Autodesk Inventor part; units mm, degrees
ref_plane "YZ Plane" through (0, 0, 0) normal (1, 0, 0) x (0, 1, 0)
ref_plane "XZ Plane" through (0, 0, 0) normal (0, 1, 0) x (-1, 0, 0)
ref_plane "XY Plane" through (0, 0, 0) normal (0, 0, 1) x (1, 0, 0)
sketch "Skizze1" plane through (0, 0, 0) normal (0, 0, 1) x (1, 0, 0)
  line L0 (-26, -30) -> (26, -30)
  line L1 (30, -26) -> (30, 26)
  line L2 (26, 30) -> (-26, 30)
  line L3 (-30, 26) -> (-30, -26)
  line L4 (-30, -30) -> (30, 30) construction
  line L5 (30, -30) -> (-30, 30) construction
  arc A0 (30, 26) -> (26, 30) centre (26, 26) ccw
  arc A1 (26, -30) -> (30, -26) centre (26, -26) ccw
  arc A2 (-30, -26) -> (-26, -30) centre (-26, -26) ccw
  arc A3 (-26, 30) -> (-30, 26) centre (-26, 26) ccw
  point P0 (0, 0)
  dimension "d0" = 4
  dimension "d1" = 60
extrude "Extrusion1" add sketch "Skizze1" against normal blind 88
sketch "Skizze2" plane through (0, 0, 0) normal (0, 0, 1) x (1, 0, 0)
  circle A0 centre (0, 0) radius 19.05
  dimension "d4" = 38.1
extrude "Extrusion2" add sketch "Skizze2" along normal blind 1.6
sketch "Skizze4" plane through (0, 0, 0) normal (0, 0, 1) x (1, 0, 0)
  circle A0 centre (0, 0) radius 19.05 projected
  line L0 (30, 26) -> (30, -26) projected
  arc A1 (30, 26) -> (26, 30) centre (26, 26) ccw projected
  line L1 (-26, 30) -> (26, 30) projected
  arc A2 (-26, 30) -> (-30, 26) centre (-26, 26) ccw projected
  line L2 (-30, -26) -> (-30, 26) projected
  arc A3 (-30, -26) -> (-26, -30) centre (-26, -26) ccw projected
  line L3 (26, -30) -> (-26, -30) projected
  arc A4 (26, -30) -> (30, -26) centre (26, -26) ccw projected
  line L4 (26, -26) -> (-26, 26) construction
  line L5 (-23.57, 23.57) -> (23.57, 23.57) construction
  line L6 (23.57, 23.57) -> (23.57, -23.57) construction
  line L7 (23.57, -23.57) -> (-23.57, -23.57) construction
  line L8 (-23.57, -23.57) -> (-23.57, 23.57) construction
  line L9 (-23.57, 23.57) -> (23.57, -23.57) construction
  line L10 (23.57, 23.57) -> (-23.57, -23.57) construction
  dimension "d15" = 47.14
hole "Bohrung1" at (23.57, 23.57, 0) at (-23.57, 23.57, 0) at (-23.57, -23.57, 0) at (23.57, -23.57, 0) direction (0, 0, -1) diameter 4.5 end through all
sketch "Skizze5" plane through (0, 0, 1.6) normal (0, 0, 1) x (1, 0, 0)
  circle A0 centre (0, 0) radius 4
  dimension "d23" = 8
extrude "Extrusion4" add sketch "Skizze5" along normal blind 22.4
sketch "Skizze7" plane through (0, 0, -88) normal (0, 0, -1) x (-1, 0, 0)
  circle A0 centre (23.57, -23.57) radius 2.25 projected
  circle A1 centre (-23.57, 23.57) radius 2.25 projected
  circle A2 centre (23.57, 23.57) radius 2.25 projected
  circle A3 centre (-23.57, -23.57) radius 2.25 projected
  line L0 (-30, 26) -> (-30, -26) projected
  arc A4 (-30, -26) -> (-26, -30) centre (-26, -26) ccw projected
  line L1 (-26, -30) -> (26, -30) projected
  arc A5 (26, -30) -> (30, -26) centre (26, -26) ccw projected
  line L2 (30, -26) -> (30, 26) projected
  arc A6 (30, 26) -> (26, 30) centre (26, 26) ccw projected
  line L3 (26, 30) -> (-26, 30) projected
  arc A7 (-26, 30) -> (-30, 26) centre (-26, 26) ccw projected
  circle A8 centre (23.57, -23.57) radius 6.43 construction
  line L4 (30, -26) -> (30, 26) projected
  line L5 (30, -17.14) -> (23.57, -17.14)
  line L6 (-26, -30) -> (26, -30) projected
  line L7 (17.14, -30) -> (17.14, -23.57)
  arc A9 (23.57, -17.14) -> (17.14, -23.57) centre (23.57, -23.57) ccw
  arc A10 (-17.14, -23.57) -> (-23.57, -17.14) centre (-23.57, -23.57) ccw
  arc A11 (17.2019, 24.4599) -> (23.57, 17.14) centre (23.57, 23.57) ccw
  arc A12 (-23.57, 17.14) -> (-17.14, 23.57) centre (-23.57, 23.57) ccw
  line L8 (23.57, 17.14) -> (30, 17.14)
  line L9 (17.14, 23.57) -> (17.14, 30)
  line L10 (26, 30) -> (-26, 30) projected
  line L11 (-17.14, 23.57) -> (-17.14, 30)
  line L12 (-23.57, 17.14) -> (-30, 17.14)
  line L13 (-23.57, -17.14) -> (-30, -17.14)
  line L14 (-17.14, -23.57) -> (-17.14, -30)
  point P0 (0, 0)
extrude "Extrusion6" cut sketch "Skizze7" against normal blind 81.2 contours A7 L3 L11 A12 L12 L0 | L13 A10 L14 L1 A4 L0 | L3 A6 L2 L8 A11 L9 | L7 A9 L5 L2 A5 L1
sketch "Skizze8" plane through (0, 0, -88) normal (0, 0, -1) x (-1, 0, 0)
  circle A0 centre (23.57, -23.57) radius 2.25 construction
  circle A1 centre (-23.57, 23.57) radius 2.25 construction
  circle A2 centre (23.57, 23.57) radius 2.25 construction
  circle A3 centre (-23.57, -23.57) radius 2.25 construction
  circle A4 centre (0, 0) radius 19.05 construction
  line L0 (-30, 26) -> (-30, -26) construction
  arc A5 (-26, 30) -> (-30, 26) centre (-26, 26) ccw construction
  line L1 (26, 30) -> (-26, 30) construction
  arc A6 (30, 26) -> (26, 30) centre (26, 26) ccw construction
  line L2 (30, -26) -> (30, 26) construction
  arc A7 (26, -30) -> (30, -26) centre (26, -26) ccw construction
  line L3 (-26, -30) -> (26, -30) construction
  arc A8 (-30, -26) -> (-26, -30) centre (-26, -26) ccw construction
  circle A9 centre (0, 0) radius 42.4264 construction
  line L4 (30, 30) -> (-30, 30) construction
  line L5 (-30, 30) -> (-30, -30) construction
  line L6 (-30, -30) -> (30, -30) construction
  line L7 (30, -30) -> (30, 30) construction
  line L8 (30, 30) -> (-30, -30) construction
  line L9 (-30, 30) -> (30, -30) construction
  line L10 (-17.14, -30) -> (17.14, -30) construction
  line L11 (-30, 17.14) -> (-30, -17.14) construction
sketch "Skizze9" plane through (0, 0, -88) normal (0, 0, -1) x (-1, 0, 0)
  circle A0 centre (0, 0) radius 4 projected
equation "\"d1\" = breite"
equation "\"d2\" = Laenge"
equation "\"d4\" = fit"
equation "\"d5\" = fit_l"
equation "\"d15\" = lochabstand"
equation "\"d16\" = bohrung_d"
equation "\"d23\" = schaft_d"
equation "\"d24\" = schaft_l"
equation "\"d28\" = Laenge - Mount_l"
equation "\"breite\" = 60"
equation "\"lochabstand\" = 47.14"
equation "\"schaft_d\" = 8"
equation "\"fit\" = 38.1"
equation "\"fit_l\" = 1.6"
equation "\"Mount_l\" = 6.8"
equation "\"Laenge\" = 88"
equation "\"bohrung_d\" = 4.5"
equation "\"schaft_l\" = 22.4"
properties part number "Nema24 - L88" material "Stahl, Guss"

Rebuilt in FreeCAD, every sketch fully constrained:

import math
import FreeCAD as App
import Part
import Sketcher
Q = App.Units.Quantity

doc = App.newDocument("Part")
body = doc.addObject("PartDesign::Body", "Body")

# Sketch on XY plane
sketch1 = body.newObject("Sketcher::SketchObject", "Sketch")
sketch1.AttachmentSupport = (doc.getObject("XY_Plane"), [""])
sketch1.MapMode = "FlatFace"
sketch1.addGeometry([
    Part.ArcOfCircle(Part.Circle(App.Vector(-26, -26, 0), App.Vector(0, 0, 1), 4), math.radians(180), math.radians(270)),  # 0
    Part.LineSegment(App.Vector(-26, -30, 0), App.Vector(26, -30, 0)),  # 1
    Part.ArcOfCircle(Part.Circle(App.Vector(26, -26, 0), App.Vector(0, 0, 1), 4), math.radians(-90), math.radians(0)),  # 2
    Part.LineSegment(App.Vector(30, -26, 0), App.Vector(30, 26, 0)),  # 3
    Part.ArcOfCircle(Part.Circle(App.Vector(26, 26, 0), App.Vector(0, 0, 1), 4), math.radians(0), math.radians(90)),  # 4
    Part.LineSegment(App.Vector(26, 30, 0), App.Vector(-26, 30, 0)),  # 5
    Part.ArcOfCircle(Part.Circle(App.Vector(-26, 26, 0), App.Vector(0, 0, 1), 4), math.radians(90), math.radians(180)),  # 6
    Part.LineSegment(App.Vector(-30, 26, 0), App.Vector(-30, -26, 0)),  # 7
], False)
sketch1.addConstraint([
    Sketcher.Constraint("Tangent", 0, 2, 1, 1),
    Sketcher.Constraint("Tangent", 1, 2, 2, 1),
    Sketcher.Constraint("Tangent", 2, 2, 3, 1),
    Sketcher.Constraint("Tangent", 3, 2, 4, 1),
    Sketcher.Constraint("Tangent", 4, 2, 5, 1),
    Sketcher.Constraint("Tangent", 5, 2, 6, 1),
    Sketcher.Constraint("Tangent", 6, 2, 7, 1),
    Sketcher.Constraint("Tangent", 7, 2, 0, 1),
    Sketcher.Constraint("Horizontal", 1),
    Sketcher.Constraint("Vertical", 3),
    Sketcher.Constraint("Horizontal", 5),
    Sketcher.Constraint("Vertical", 7),
    Sketcher.Constraint("Equal", 0, 2),
    Sketcher.Constraint("Equal", 2, 4),
    Sketcher.Constraint("Equal", 4, 6),
    Sketcher.Constraint("Symmetric", 0, 3, 4, 3, -1, 1),
    Sketcher.Constraint("Equal", 5, 3),
    Sketcher.Constraint("Radius", 0, Q("4 mm")),
    Sketcher.Constraint("DistanceX", 1, 1, 1, 2, Q("52 mm")),
])
pad1 = body.newObject("PartDesign::Pad", "Pad")
pad1.Profile = sketch1
pad1.Length = 88
pad1.Reversed = True

# Sketch on XY plane
sketch2 = body.newObject("Sketcher::SketchObject", "Sketch001")
sketch2.AttachmentSupport = (doc.getObject("XY_Plane"), [""])
sketch2.MapMode = "FlatFace"
sketch2.addGeometry(Part.Circle(App.Vector(0, 0, 0), App.Vector(0, 0, 1), 19.05), False)
sketch2.addConstraint([
    Sketcher.Constraint("Coincident", 0, 3, -1, 1),
    Sketcher.Constraint("Diameter", 0, Q("38.1 mm")),
])
pad2 = body.newObject("PartDesign::Pad", "Pad001")
pad2.Profile = sketch2
pad2.Length = 1.6

# Sketch on XY plane
sketch3 = body.newObject("Sketcher::SketchObject", "Sketch002")
sketch3.AttachmentSupport = (doc.getObject("XY_Plane"), [""])
sketch3.MapMode = "FlatFace"
sketch3.addGeometry([
    Part.Circle(App.Vector(23.57, 23.57, 0), App.Vector(0, 0, 1), 2.25),
    Part.Circle(App.Vector(-23.57, 23.57, 0), App.Vector(0, 0, 1), 2.25),
    Part.Circle(App.Vector(-23.57, -23.57, 0), App.Vector(0, 0, 1), 2.25),
    Part.Circle(App.Vector(23.57, -23.57, 0), App.Vector(0, 0, 1), 2.25),
], False)
sketch3.addConstraint([
    Sketcher.Constraint("Equal", 0, 1),
    Sketcher.Constraint("Equal", 1, 2),
    Sketcher.Constraint("Equal", 2, 3),
    Sketcher.Constraint("Symmetric", 0, 3, 2, 3, -1, 1),
    Sketcher.Constraint("Symmetric", 1, 3, 3, 3, -1, 1),
    Sketcher.Constraint("Symmetric", 0, 3, 1, 3, -2),
    Sketcher.Constraint("Diameter", 0, Q("4.5 mm")),
    Sketcher.Constraint("DistanceX", -1, 1, 0, 3, Q("23.57 mm")),
    Sketcher.Constraint("DistanceY", -1, 1, 0, 3, Q("23.57 mm")),
])
doc.recompute()
hole = body.newObject("PartDesign::Hole", "Hole")
hole.Profile = sketch3
hole.ThreadType = "None"
hole.Diameter = 4.5
hole.DepthType = "ThroughAll"

# Sketch on XY plane
sketch4 = body.newObject("Sketcher::SketchObject", "Sketch003")
sketch4.AttachmentSupport = (doc.getObject("XY_Plane"), [""])
sketch4.MapMode = "FlatFace"
sketch4.AttachmentOffset = App.Placement(App.Vector(0, 0, 1.6), App.Rotation())
sketch4.addGeometry(Part.Circle(App.Vector(0, 0, 0), App.Vector(0, 0, 1), 4), False)
sketch4.addConstraint([
    Sketcher.Constraint("Coincident", 0, 3, -1, 1),
    Sketcher.Constraint("Diameter", 0, Q("8 mm")),
])
pad3 = body.newObject("PartDesign::Pad", "Pad002")
pad3.Profile = sketch4
pad3.Length = 22.4

# Sketch on XY plane
sketch5 = body.newObject("Sketcher::SketchObject", "Sketch004")
sketch5.AttachmentSupport = (doc.getObject("XY_Plane"), [""])
sketch5.MapMode = "FlatFace"
sketch5.AttachmentOffset = App.Placement(App.Vector(0, 0, -88), App.Rotation())
sketch5.addGeometry([
    Part.ArcOfCircle(Part.Circle(App.Vector(26, 26, 0), App.Vector(0, 0, 1), 4), math.radians(0), math.radians(90)),  # 0
    Part.LineSegment(App.Vector(30, 26, 0), App.Vector(30, 17.14, 0)),  # 1
    Part.LineSegment(App.Vector(30, 17.14, 0), App.Vector(23.57, 17.14, 0)),  # 2
    Part.ArcOfCircle(Part.Circle(App.Vector(23.57, 23.57, 0), App.Vector(0, 0, 1), 6.43), math.radians(180), math.radians(270)),  # 3
    Part.LineSegment(App.Vector(17.14, 23.57, 0), App.Vector(17.14, 30, 0)),  # 4
    Part.LineSegment(App.Vector(17.14, 30, 0), App.Vector(26, 30, 0)),  # 5
    Part.Circle(App.Vector(23.57, 23.57, 0), App.Vector(0, 0, 1), 2.25),  # 6
    Part.LineSegment(App.Vector(23.57, -17.14, 0), App.Vector(30, -17.14, 0)),  # 7
    Part.LineSegment(App.Vector(30, -17.14, 0), App.Vector(30, -26, 0)),  # 8
    Part.ArcOfCircle(Part.Circle(App.Vector(26, -26, 0), App.Vector(0, 0, 1), 4), math.radians(-90), math.radians(0)),  # 9
    Part.LineSegment(App.Vector(26, -30, 0), App.Vector(17.14, -30, 0)),  # 10
    Part.LineSegment(App.Vector(17.14, -30, 0), App.Vector(17.14, -23.57, 0)),  # 11
    Part.ArcOfCircle(Part.Circle(App.Vector(23.57, -23.57, 0), App.Vector(0, 0, 1), 6.43), math.radians(90), math.radians(180)),  # 12
    Part.Circle(App.Vector(23.57, -23.57, 0), App.Vector(0, 0, 1), 2.25),  # 13
    Part.LineSegment(App.Vector(-26, 30, 0), App.Vector(-17.14, 30, 0)),  # 14
    Part.LineSegment(App.Vector(-17.14, 30, 0), App.Vector(-17.14, 23.57, 0)),  # 15
    Part.ArcOfCircle(Part.Circle(App.Vector(-23.57, 23.57, 0), App.Vector(0, 0, 1), 6.429978), math.radians(-90), math.radians(0)),  # 16
    Part.LineSegment(App.Vector(-23.57, 17.14, 0), App.Vector(-30, 17.14, 0)),  # 17
    Part.LineSegment(App.Vector(-30, 17.14, 0), App.Vector(-30, 26, 0)),  # 18
    Part.ArcOfCircle(Part.Circle(App.Vector(-26, 26, 0), App.Vector(0, 0, 1), 4), math.radians(90), math.radians(180)),  # 19
    Part.Circle(App.Vector(-23.57, 23.57, 0), App.Vector(0, 0, 1), 2.25),  # 20
    Part.LineSegment(App.Vector(-17.14, -23.57, 0), App.Vector(-17.14, -30, 0)),  # 21
    Part.LineSegment(App.Vector(-17.14, -30, 0), App.Vector(-26, -30, 0)),  # 22
    Part.ArcOfCircle(Part.Circle(App.Vector(-26, -26, 0), App.Vector(0, 0, 1), 4), math.radians(180), math.radians(270)),  # 23
    Part.LineSegment(App.Vector(-30, -26, 0), App.Vector(-30, -17.14, 0)),  # 24
    Part.LineSegment(App.Vector(-30, -17.14, 0), App.Vector(-23.57, -17.14, 0)),  # 25
    Part.ArcOfCircle(Part.Circle(App.Vector(-23.57, -23.57, 0), App.Vector(0, 0, 1), 6.43), math.radians(0), math.radians(90)),  # 26
    Part.Circle(App.Vector(-23.57, -23.57, 0), App.Vector(0, 0, 1), 2.25),  # 27
], False)
sketch5.addConstraint([
    Sketcher.Constraint("Tangent", 0, 1, 1, 1),
    Sketcher.Constraint("Coincident", 1, 2, 2, 1),
    Sketcher.Constraint("Tangent", 2, 2, 3, 2),
    Sketcher.Constraint("Tangent", 3, 1, 4, 1),
    Sketcher.Constraint("Coincident", 4, 2, 5, 1),
    Sketcher.Constraint("Tangent", 5, 2, 0, 2),
    Sketcher.Constraint("Coincident", 7, 2, 8, 1),
    Sketcher.Constraint("Tangent", 8, 2, 9, 2),
    Sketcher.Constraint("Tangent", 9, 1, 10, 1),
    Sketcher.Constraint("Coincident", 10, 2, 11, 1),
    Sketcher.Constraint("Tangent", 11, 2, 12, 2),
    Sketcher.Constraint("Tangent", 12, 1, 7, 1),
    Sketcher.Constraint("Coincident", 14, 2, 15, 1),
    Sketcher.Constraint("Tangent", 15, 2, 16, 2),
    Sketcher.Constraint("Tangent", 16, 1, 17, 1),
    Sketcher.Constraint("Coincident", 17, 2, 18, 1),
    Sketcher.Constraint("Tangent", 18, 2, 19, 2),
    Sketcher.Constraint("Tangent", 19, 1, 14, 1),
    Sketcher.Constraint("Coincident", 21, 2, 22, 1),
    Sketcher.Constraint("Tangent", 22, 2, 23, 2),
    Sketcher.Constraint("Tangent", 23, 1, 24, 1),
    Sketcher.Constraint("Coincident", 24, 2, 25, 1),
    Sketcher.Constraint("Tangent", 25, 2, 26, 2),
    Sketcher.Constraint("Tangent", 26, 1, 21, 1),
    Sketcher.Constraint("Vertical", 1),
    Sketcher.Constraint("Horizontal", 2),
    Sketcher.Constraint("Vertical", 4),
    Sketcher.Constraint("Horizontal", 5),
    Sketcher.Constraint("Horizontal", 7),
    Sketcher.Constraint("Vertical", 8),
    Sketcher.Constraint("Horizontal", 10),
    Sketcher.Constraint("Vertical", 11),
    Sketcher.Constraint("Horizontal", 14),
    Sketcher.Constraint("Vertical", 15),
    Sketcher.Constraint("Horizontal", 17),
    Sketcher.Constraint("Vertical", 18),
    Sketcher.Constraint("Vertical", 21),
    Sketcher.Constraint("Horizontal", 22),
    Sketcher.Constraint("Vertical", 24),
    Sketcher.Constraint("Horizontal", 25),
    Sketcher.Constraint("Coincident", 6, 3, 3, 3),
    Sketcher.Constraint("Coincident", 13, 3, 12, 3),
    Sketcher.Constraint("Coincident", 20, 3, 16, 3),
    Sketcher.Constraint("Coincident", 27, 3, 26, 3),
    Sketcher.Constraint("Equal", 0, 9),
    Sketcher.Constraint("Equal", 3, 12),
    Sketcher.Constraint("Equal", 6, 13),
    Sketcher.Constraint("Equal", 12, 16),
    Sketcher.Constraint("Equal", 9, 19),
    Sketcher.Constraint("Equal", 13, 20),
    Sketcher.Constraint("Equal", 19, 23),
    Sketcher.Constraint("Equal", 16, 26),
    Sketcher.Constraint("Equal", 20, 27),
    Sketcher.Constraint("Symmetric", 12, 3, 16, 3, -1, 1),
    Sketcher.Constraint("Symmetric", 9, 3, 19, 3, -1, 1),
    Sketcher.Constraint("Symmetric", 0, 3, 23, 3, -1, 1),
    Sketcher.Constraint("Symmetric", 3, 3, 26, 3, -1, 1),
    Sketcher.Constraint("Symmetric", 3, 3, 16, 3, -2),
    Sketcher.Constraint("Symmetric", 0, 3, 19, 3, -2),
    Sketcher.Constraint("Equal", 22, 1),
    Sketcher.Constraint("Radius", 0, Q("4 mm")),
    Sketcher.Constraint("Diameter", 6, Q("4.5 mm")),
    Sketcher.Constraint("Radius", 3, Q("6.43 mm")),
    Sketcher.Constraint("DistanceX", -1, 1, 0, 3, Q("26 mm")),
    Sketcher.Constraint("DistanceY", -1, 1, 0, 3, Q("26 mm")),
    Sketcher.Constraint("DistanceX", 2, 2, 2, 1, Q("6.43 mm")),
])
pocket1 = body.newObject("PartDesign::Pocket", "Pocket")
pocket1.Profile = sketch5
pocket1.Length = 81.2
pocket1.Reversed = True

doc.recompute()
